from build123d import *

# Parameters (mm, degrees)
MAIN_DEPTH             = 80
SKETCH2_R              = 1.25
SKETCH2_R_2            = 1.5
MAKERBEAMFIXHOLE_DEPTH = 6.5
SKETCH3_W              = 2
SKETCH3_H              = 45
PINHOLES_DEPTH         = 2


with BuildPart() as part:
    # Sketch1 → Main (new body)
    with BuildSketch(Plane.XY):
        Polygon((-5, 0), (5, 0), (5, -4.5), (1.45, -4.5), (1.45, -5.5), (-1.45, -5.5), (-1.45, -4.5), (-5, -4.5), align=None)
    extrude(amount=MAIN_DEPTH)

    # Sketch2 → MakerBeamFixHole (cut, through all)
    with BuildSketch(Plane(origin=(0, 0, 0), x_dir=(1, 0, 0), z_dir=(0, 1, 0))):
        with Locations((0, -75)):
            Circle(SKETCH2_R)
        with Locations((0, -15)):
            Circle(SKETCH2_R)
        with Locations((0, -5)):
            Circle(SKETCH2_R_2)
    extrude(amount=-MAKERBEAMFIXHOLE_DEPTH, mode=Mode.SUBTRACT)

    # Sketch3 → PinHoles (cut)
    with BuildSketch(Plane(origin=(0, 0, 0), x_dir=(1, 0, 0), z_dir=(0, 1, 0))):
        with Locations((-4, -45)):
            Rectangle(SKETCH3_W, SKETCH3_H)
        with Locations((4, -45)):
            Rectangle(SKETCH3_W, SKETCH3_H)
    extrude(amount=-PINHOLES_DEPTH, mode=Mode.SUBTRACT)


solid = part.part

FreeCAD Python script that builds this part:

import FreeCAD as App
import Part
import Sketcher


def add_polygon(sketch, points):
    """Adds a closed chain of lines whose ends are joined by coincident constraints."""
    first, n = sketch.GeometryCount, len(points)
    for a, b in zip(points, points[1:] + points[:1]):
        sketch.addGeometry(Part.LineSegment(App.Vector(*a, 0), App.Vector(*b, 0)), False)
    for i in range(n):
        sketch.addConstraint(Sketcher.Constraint("Coincident", first + i, 2, first + (i + 1) % n, 1))

doc = App.newDocument("Part")
body = doc.addObject("PartDesign::Body", "Body")

# Sketch on XY plane
sketch1 = doc.addObject("Sketcher::SketchObject", "Sketch")
body.addObject(sketch1)
sketch1.AttachmentSupport = (doc.XY_Plane, [""])
sketch1.MapMode = "FlatFace"
add_polygon(sketch1, [(5, 0), (-5, 0), (-5, -4.5), (-1.4, -4.5), (-1.4, -5.5), (1.4, -5.5), (1.4, -4.5), (5, -4.5)])  # lines 0-7
sketch1.addConstraint([
    Sketcher.Constraint("Horizontal", 0),
    Sketcher.Constraint("Vertical", 1),
    Sketcher.Constraint("Horizontal", 2),
    Sketcher.Constraint("Vertical", 3),
    Sketcher.Constraint("Horizontal", 4),
    Sketcher.Constraint("Vertical", 5),
    Sketcher.Constraint("Horizontal", 6),
    Sketcher.Constraint("Vertical", 7),
    Sketcher.Constraint("Symmetric", 0, 2, 7, 2, -1, 1),
    Sketcher.Constraint("Symmetric", 2, 2, 5, 2, -2),
    Sketcher.Constraint("DistanceX", 0, 2, 0, 1, 10.0),
    Sketcher.Constraint("DistanceY", 3, 2, 3, 1, 1.0),
    Sketcher.Constraint("DistanceX", 4, 1, 4, 2, 2.9),
    Sketcher.Constraint("DistanceY", 1, 2, 1, 1, 4.5),
])
pad1 = doc.addObject("PartDesign::Pad", "Pad")
body.addObject(pad1)
pad1.Profile = sketch1
pad1.Length = 80

# Sketch on XZ plane
sketch2 = doc.addObject("Sketcher::SketchObject", "Sketch001")
body.addObject(sketch2)
sketch2.AttachmentSupport = (doc.XZ_Plane, [""])
sketch2.MapMode = "FlatFace"
sketch2.addGeometry([
    Part.Circle(App.Vector(0, 75, 0), App.Vector(0, 0, 1), 1.2),
    Part.Circle(App.Vector(0, 15, 0), App.Vector(0, 0, 1), 1.2),
    Part.Circle(App.Vector(0, 5, 0), App.Vector(0, 0, 1), 1.5),
], False)
sketch2.addConstraint([
    Sketcher.Constraint("Equal", 0, 1),
    Sketcher.Constraint("PointOnObject", 0, 3, -2),
    Sketcher.Constraint("PointOnObject", 1, 3, -2),
    Sketcher.Constraint("PointOnObject", 2, 3, -2),
    Sketcher.Constraint("Diameter", 2, 3.0),
    Sketcher.Constraint("Diameter", 0, 2.5),
    Sketcher.Constraint("DistanceY", -1, 1, 0, 3, 75.0),
    Sketcher.Constraint("DistanceY", -1, 1, 1, 3, 15.0),
    Sketcher.Constraint("DistanceY", -1, 1, 2, 3, 5.0),
])
pocket1 = doc.addObject("PartDesign::Pocket", "Pocket")
body.addObject(pocket1)
pocket1.Profile = sketch2
pocket1.Type = "ThroughAll"
pocket1.Reversed = True

# Sketch on XZ plane
sketch3 = doc.addObject("Sketcher::SketchObject", "Sketch002")
body.addObject(sketch3)
sketch3.AttachmentSupport = (doc.XZ_Plane, [""])
sketch3.MapMode = "FlatFace"
add_polygon(sketch3, [(-5, 22.5), (-5, 67.5), (-3, 67.5), (-3, 22.5)])  # lines 0-3
add_polygon(sketch3, [(3, 22.5), (3, 67.5), (5, 67.5), (5, 22.5)])  # lines 4-7
sketch3.addConstraint([
    Sketcher.Constraint("Vertical", 0),
    Sketcher.Constraint("Horizontal", 1),
    Sketcher.Constraint("Vertical", 2),
    Sketcher.Constraint("Horizontal", 3),
    Sketcher.Constraint("Vertical", 4),
    Sketcher.Constraint("Horizontal", 5),
    Sketcher.Constraint("Vertical", 6),
    Sketcher.Constraint("Horizontal", 7),
    Sketcher.Constraint("Symmetric", 1, 2, 4, 2, -2),
    Sketcher.Constraint("Symmetric", 3, 2, 6, 2, -2),
    Sketcher.Constraint("DistanceX", 1, 1, 1, 2, 2.0),
    Sketcher.Constraint("DistanceY", 0, 1, 0, 2, 45.0),
    Sketcher.Constraint("DistanceX", 0, 2, -1, 1, 5.0),
    Sketcher.Constraint("DistanceY", -1, 1, 0, 2, 67.5),
])
pocket2 = doc.addObject("PartDesign::Pocket", "Pocket001")
body.addObject(pocket2)
pocket2.Profile = sketch3
pocket2.Length = 2
pocket2.Reversed = True

doc.recompute()
